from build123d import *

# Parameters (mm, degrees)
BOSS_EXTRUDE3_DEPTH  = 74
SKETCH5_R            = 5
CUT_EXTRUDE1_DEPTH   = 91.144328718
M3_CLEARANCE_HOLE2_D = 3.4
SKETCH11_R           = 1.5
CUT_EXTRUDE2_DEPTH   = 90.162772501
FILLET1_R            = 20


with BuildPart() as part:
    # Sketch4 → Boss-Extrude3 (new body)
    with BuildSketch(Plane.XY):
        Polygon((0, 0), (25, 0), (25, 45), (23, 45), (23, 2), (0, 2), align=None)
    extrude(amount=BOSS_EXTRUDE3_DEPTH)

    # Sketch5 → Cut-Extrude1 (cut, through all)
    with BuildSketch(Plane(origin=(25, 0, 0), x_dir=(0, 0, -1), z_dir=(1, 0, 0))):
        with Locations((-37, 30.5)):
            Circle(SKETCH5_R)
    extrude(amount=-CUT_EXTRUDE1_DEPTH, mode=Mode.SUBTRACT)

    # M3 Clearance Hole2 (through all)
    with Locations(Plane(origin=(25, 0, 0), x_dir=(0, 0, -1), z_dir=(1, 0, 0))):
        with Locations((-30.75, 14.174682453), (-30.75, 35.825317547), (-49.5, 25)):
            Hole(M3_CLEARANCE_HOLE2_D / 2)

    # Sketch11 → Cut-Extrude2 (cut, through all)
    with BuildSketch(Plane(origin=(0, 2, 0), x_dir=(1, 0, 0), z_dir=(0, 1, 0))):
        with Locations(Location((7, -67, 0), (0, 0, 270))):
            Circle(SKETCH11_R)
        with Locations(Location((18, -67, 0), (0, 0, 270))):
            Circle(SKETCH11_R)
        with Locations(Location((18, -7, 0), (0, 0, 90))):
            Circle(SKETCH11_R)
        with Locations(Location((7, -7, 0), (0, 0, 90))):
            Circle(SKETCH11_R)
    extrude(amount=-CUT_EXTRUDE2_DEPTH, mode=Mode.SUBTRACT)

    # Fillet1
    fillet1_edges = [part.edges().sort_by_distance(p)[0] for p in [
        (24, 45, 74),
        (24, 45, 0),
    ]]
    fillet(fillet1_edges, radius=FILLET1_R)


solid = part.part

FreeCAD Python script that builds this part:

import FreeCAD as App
import Part
import Sketcher
Q = App.Units.Quantity


def edges_at(feature, points):
    """Names of the edges that pass closest to the given points."""
    edges = feature.Shape.Edges
    near = lambda p: min(range(len(edges)), key=lambda i: edges[i].distToShape(Part.Vertex(*p))[0])
    return sorted({f"Edge{near(p) + 1}" for p in points})

doc = App.newDocument("Part")
params = doc.addObject("Spreadsheet::Sheet", "Params")
for row, (alias, value) in enumerate([
    ("sketch1_width", "25 mm"),
    ("sketch1_width2", "2 mm"),
    ("sketch1_height", "45 mm"),
    ("pad1_length", "74 mm"),
    ("sketch2_diameter", "10 mm"),
    ("sketch3_diameter", "3.4 mm"),
    ("hole_diameter", "3.4 mm"),
    ("sketch4_diameter", "3 mm"),
    ("fillet_radius", "20 mm"),
], start=1):
    params.set(f"A{row}", alias)
    params.set(f"B{row}", "=" + value)
    params.setAlias(f"B{row}", alias)

body = doc.addObject("PartDesign::Body", "Body")

sketch1 = body.newObject("Sketcher::SketchObject", "Sketch")
sketch1.AttachmentSupport = (doc.getObject("XY_Plane"), [""])
sketch1.MapMode = "FlatFace"
sketch1.addGeometry([
    Part.LineSegment(App.Vector(0, 0, 0), App.Vector(25, 0, 0)),
    Part.LineSegment(App.Vector(25, 0, 0), App.Vector(25, 45, 0)),
    Part.LineSegment(App.Vector(25, 45, 0), App.Vector(23, 45, 0)),
    Part.LineSegment(App.Vector(23, 45, 0), App.Vector(23, 2, 0)),
    Part.LineSegment(App.Vector(23, 2, 0), App.Vector(0, 2, 0)),
    Part.LineSegment(App.Vector(0, 2, 0), App.Vector(0, 0, 0)),
], False)
sketch1.addConstraint([
    Sketcher.Constraint("Coincident", 0, 2, 1, 1),
    Sketcher.Constraint("Coincident", 1, 2, 2, 1),
    Sketcher.Constraint("Coincident", 2, 2, 3, 1),
    Sketcher.Constraint("Coincident", 3, 2, 4, 1),
    Sketcher.Constraint("Coincident", 4, 2, 5, 1),
    Sketcher.Constraint("Coincident", 5, 2, 0, 1),
    Sketcher.Constraint("Horizontal", 0),
    Sketcher.Constraint("Vertical", 1),
    Sketcher.Constraint("Horizontal", 2),
    Sketcher.Constraint("Vertical", 3),
    Sketcher.Constraint("Horizontal", 4),
    Sketcher.Constraint("Vertical", 5),
    Sketcher.Constraint("Coincident", 5, 2, -1, 1),
    Sketcher.Constraint("Equal", 2, 5),
    Sketcher.Constraint("DistanceX", 0, 1, 0, 2, Q("25 mm")),
    Sketcher.Constraint("DistanceX", 2, 2, 2, 1, Q("2 mm")),
    Sketcher.Constraint("DistanceY", 1, 1, 1, 2, Q("45 mm")),
])
sketch1.setExpression("Constraints[14]", "Params.sketch1_width")
sketch1.setExpression("Constraints[15]", "Params.sketch1_width2")
sketch1.setExpression("Constraints[16]", "Params.sketch1_height")
pad1 = body.newObject("PartDesign::Pad", "Pad")
pad1.Profile = sketch1
pad1.setExpression("Length", "Params.pad1_length")

sketch2 = body.newObject("Sketcher::SketchObject", "Sketch001")
sketch2.AttachmentSupport = (doc.getObject("YZ_Plane"), [""])
sketch2.MapMode = "FlatFace"
sketch2.AttachmentOffset = App.Placement(App.Vector(0, 0, 25), App.Rotation())
sketch2.addGeometry(Part.Circle(App.Vector(30, 37, 0), App.Vector(0, 0, 1), 5), False)
sketch2.addConstraint([
    Sketcher.Constraint("Diameter", 0, Q("10 mm")),
    Sketcher.Constraint("DistanceY", -1, 1, 0, 3, Q("37 mm")),
    Sketcher.Constraint("DistanceX", -1, 1, 0, 3, Q("30.5 mm")),
])
sketch2.setExpression("Constraints[0]", "Params.sketch2_diameter")
pocket1 = body.newObject("PartDesign::Pocket", "Pocket")
pocket1.Profile = sketch2
pocket1.Type = "ThroughAll"

sketch3 = body.newObject("Sketcher::SketchObject", "Sketch002")
sketch3.AttachmentSupport = (doc.getObject("YZ_Plane"), [""])
sketch3.MapMode = "FlatFace"
sketch3.AttachmentOffset = App.Placement(App.Vector(0, 0, 25), App.Rotation())
sketch3.addGeometry([
    Part.Circle(App.Vector(14.2, 30.8, 0), App.Vector(0, 0, 1), 1.7),
    Part.Circle(App.Vector(35.8, 30.8, 0), App.Vector(0, 0, 1), 1.7),
    Part.Circle(App.Vector(25, 49.5, 0), App.Vector(0, 0, 1), 1.7),
], False)
sketch3.addConstraint([
    Sketcher.Constraint("Equal", 0, 1),
    Sketcher.Constraint("Equal", 1, 2),
    Sketcher.Constraint("Horizontal", 0, 3, 1, 3),
    Sketcher.Constraint("Diameter", 0, Q("3.4 mm")),
    Sketcher.Constraint("DistanceX", -1, 1, 2, 3, Q("25 mm")),
    Sketcher.Constraint("DistanceY", -1, 1, 2, 3, Q("49.5 mm")),
    Sketcher.Constraint("DistanceY", -1, 1, 0, 3, Q("30.75 mm")),
    Sketcher.Constraint("DistanceX", -1, 1, 0, 3, Q("14.174682 mm")),
    Sketcher.Constraint("DistanceX", -1, 1, 1, 3, Q("35.825318 mm")),
])
sketch3.setExpression("Constraints[3]", "Params.sketch3_diameter")
doc.recompute()
hole = body.newObject("PartDesign::Hole", "Hole")
hole.Profile = sketch3
hole.ThreadType = "None"
hole.setExpression("Diameter", "Params.hole_diameter")
hole.DepthType = "ThroughAll"

sketch4 = body.newObject("Sketcher::SketchObject", "Sketch003")
sketch4.AttachmentSupport = (doc.getObject("XZ_Plane"), [""])
sketch4.MapMode = "FlatFace"
sketch4.AttachmentOffset = App.Placement(App.Vector(0, 0, -2), App.Rotation())
sketch4.addGeometry([
    Part.Circle(App.Vector(7, 67, 0), App.Vector(0, 0, 1), 1.5),
    Part.Circle(App.Vector(18, 67, 0), App.Vector(0, 0, 1), 1.5),
    Part.Circle(App.Vector(18, 7, 0), App.Vector(0, 0, 1), 1.5),
    Part.Circle(App.Vector(7, 7, 0), App.Vector(0, 0, 1), 1.5),
], False)
sketch4.addConstraint([
    Sketcher.Constraint("Equal", 0, 1),
    Sketcher.Constraint("Equal", 1, 2),
    Sketcher.Constraint("Equal", 2, 3),
    Sketcher.Constraint("Horizontal", 0, 3, 1, 3),
    Sketcher.Constraint("Horizontal", 2, 3, 3, 3),
    Sketcher.Constraint("Vertical", 1, 3, 2, 3),
    Sketcher.Constraint("Vertical", 0, 3, 3, 3),
    Sketcher.Constraint("Diameter", 0, Q("3 mm")),
    Sketcher.Constraint("DistanceX", -1, 1, 0, 3, Q("7 mm")),
    Sketcher.Constraint("DistanceY", -1, 1, 0, 3, Q("67 mm")),
    Sketcher.Constraint("DistanceX", -1, 1, 1, 3, Q("18 mm")),
    Sketcher.Constraint("DistanceY", -1, 1, 2, 3, Q("7 mm")),
])
sketch4.setExpression("Constraints[7]", "Params.sketch4_diameter")
pocket2 = body.newObject("PartDesign::Pocket", "Pocket001")
pocket2.Profile = sketch4
pocket2.Type = "ThroughAll"
pocket2.Reversed = True
doc.recompute()

fillet = body.newObject("PartDesign::Fillet", "Fillet")
fillet.Base = (pocket2, edges_at(pocket2, [(24, 45, 74), (24, 45, 0)]))
fillet.setExpression("Radius", "Params.fillet_radius")

doc.recompute()
